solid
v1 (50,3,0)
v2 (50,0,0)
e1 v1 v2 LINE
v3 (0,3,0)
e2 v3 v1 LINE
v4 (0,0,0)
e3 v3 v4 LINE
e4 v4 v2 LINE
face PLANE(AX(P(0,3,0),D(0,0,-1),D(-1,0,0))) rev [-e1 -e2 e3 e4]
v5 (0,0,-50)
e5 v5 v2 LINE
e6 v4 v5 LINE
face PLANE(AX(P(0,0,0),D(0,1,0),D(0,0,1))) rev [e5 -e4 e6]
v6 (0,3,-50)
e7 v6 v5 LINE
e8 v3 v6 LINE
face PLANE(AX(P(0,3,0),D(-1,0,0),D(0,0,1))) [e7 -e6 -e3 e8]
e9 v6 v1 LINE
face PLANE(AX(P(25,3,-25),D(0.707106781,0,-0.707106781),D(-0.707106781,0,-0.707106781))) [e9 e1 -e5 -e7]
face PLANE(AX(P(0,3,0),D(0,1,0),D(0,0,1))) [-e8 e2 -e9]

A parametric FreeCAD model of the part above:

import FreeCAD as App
import Part
import Sketcher
from FreeCAD import Vector


def add_polygon(sketch, points):
    """Adds a closed chain of lines whose ends are joined by coincident constraints."""
    first, n = sketch.GeometryCount, len(points)
    for a, b in zip(points, points[1:] + points[:1]):
        sketch.addGeometry(Part.LineSegment(App.Vector(*a, 0), App.Vector(*b, 0)), False)
    for i in range(n):
        sketch.addConstraint(Sketcher.Constraint("Coincident", first + i, 2, first + (i + 1) % n, 1))

doc = App.newDocument("Part")
body = doc.addObject("PartDesign::Body", "Body")

# Sketch on XZ plane
sketch1 = body.newObject("Sketcher::SketchObject", "Sketch")
sketch1.AttachmentSupport = (doc.getObject("XZ_Plane"), [""])
sketch1.MapMode = "FlatFace"
add_polygon(sketch1, [(0, -50), (0, 0), (50, 0)])  # lines 0-2
sketch1.addConstraint([
    Sketcher.Constraint("Vertical", 0),
    Sketcher.Constraint("Horizontal", 1),
    Sketcher.Constraint("Coincident", 0, 2, -1, 1),
    Sketcher.Constraint("Equal", 1, 0),
    Sketcher.Constraint("DistanceX", 1, 1, 1, 2, 50.0),
])
pad1 = body.newObject("PartDesign::Pad", "Pad")
pad1.Profile = sketch1
pad1.Length = 3
pad1.Reversed = True

doc.recompute()
